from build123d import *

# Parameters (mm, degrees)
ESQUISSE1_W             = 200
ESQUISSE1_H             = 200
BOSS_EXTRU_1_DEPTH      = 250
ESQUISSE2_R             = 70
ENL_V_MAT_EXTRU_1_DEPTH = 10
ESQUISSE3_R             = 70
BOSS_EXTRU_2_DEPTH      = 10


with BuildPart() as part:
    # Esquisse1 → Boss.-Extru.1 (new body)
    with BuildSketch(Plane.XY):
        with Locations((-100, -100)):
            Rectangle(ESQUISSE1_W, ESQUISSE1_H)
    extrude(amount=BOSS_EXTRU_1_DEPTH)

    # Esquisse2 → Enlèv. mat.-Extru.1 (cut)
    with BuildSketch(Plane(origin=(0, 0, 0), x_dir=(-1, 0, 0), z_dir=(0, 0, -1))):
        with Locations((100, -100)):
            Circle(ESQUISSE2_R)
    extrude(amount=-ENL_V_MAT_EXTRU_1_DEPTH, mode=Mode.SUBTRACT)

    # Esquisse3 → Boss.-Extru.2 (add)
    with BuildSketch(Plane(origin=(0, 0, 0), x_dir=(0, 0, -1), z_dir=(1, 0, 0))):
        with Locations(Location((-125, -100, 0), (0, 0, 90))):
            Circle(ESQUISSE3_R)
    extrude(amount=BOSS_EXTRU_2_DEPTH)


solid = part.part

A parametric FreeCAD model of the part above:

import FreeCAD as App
import Part
import Sketcher
from FreeCAD import Vector
Q = App.Units.Quantity

doc = App.newDocument("Part")
body = doc.addObject("PartDesign::Body", "Body")

# Sketch on XY plane
sketch1 = body.newObject("Sketcher::SketchObject", "Sketch")
sketch1.AttachmentSupport = (doc.getObject("XY_Plane"), [""])
sketch1.MapMode = "FlatFace"
sketch1.addGeometry(Part.LineSegment(Vector(-200, 0, 0), Vector(-200, -200, 0)), False)
sketch1.addGeometry(Part.LineSegment(Vector(-200, -200, 0), Vector(0, -200, 0)), False)
sketch1.addGeometry(Part.LineSegment(Vector(0, -200, 0), Vector(0, 0, 0)), False)
sketch1.addGeometry(Part.LineSegment(Vector(0, 0, 0), Vector(-200, 0, 0)), False)
sketch1.addConstraint(Sketcher.Constraint("Coincident", 0, 2, 1, 1))
sketch1.addConstraint(Sketcher.Constraint("Coincident", 1, 2, 2, 1))
sketch1.addConstraint(Sketcher.Constraint("Coincident", 2, 2, 3, 1))
sketch1.addConstraint(Sketcher.Constraint("Coincident", 3, 2, 0, 1))
sketch1.addConstraint(Sketcher.Constraint("Vertical", 0))
sketch1.addConstraint(Sketcher.Constraint("Horizontal", 1))
sketch1.addConstraint(Sketcher.Constraint("Vertical", 2))
sketch1.addConstraint(Sketcher.Constraint("Horizontal", 3))
sketch1.addConstraint(Sketcher.Constraint("Coincident", 2, 2, -1, 1))
sketch1.addConstraint(Sketcher.Constraint("Equal", 3, 0))
sketch1.addConstraint(Sketcher.Constraint("DistanceX", 1, 1, 1, 2, Q("200 mm")))
pad1 = body.newObject("PartDesign::Pad", "Pad")
pad1.Profile = sketch1
pad1.Length = 250

# Sketch on XY plane
sketch2 = body.newObject("Sketcher::SketchObject", "Sketch001")
sketch2.AttachmentSupport = (doc.getObject("XY_Plane"), [""])
sketch2.MapMode = "FlatFace"
sketch2.addGeometry(Part.Circle(Vector(-100, -100, 0), Vector(0, 0, 1), 70), False)
sketch2.addConstraint(Sketcher.Constraint("Diameter", 0, Q("140 mm")))
sketch2.addConstraint(Sketcher.Constraint("DistanceX", 0, 3, -1, 1, Q("100 mm")))
sketch2.addConstraint(Sketcher.Constraint("DistanceY", 0, 3, -1, 1, Q("100 mm")))
pocket1 = body.newObject("PartDesign::Pocket", "Pocket")
pocket1.Profile = sketch2
pocket1.Length = 10
pocket1.Reversed = True

# Sketch on YZ plane
sketch3 = body.newObject("Sketcher::SketchObject", "Sketch002")
sketch3.AttachmentSupport = (doc.getObject("YZ_Plane"), [""])
sketch3.MapMode = "FlatFace"
sketch3.addGeometry(Part.Circle(Vector(-100, 125, 0), Vector(0, 0, 1), 70), False)
sketch3.addConstraint(Sketcher.Constraint("Diameter", 0, Q("140 mm")))
sketch3.addConstraint(Sketcher.Constraint("DistanceX", 0, 3, -1, 1, Q("100 mm")))
sketch3.addConstraint(Sketcher.Constraint("DistanceY", -1, 1, 0, 3, Q("125 mm")))
pad2 = body.newObject("PartDesign::Pad", "Pad001")
pad2.Profile = sketch3
pad2.Length = 10

doc.recompute()
